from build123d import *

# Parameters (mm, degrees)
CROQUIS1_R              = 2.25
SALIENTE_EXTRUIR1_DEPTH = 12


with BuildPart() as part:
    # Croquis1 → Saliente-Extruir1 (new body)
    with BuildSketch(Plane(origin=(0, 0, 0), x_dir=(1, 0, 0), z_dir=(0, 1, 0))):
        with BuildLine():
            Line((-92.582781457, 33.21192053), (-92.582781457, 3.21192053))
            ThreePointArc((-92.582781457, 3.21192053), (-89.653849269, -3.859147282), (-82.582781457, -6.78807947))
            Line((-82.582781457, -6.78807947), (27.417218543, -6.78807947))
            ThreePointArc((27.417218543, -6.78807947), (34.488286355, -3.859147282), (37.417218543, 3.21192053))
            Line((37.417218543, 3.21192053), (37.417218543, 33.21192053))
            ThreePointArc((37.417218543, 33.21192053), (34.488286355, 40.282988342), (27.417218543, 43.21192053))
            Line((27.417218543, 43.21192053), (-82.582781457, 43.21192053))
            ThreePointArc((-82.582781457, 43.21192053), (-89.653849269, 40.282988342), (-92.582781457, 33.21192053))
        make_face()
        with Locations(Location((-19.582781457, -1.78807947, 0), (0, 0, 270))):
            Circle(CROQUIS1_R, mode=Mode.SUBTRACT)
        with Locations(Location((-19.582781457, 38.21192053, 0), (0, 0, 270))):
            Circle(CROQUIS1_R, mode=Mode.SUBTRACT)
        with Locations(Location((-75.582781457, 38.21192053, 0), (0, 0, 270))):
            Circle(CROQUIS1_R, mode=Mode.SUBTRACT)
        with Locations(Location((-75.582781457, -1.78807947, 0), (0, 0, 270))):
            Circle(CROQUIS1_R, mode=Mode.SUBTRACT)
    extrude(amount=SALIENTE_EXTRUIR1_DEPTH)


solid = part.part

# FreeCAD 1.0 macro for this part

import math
import FreeCAD as App
import Part
import Sketcher
from FreeCAD import Vector
Q = App.Units.Quantity

doc = App.newDocument("Part")
body = doc.addObject("PartDesign::Body", "Body")

sketch1 = doc.addObject("Sketcher::SketchObject", "Sketch")
body.addObject(sketch1)
sketch1.AttachmentSupport = (doc.XZ_Plane, [""])
sketch1.MapMode = "FlatFace"
sketch1.addGeometry(Part.LineSegment(Vector(-92.6, -33.2, 0), Vector(-92.6, -3.2, 0)), False)
sketch1.addGeometry(Part.ArcOfCircle(Part.Circle(Vector(-82.6, -3.2, 0), Vector(0, 0, 1), 10), math.radians(90), math.radians(180)), False)
sketch1.addGeometry(Part.LineSegment(Vector(-82.6, 6.8, 0), Vector(27.4, 6.8, 0)), False)
sketch1.addGeometry(Part.ArcOfCircle(Part.Circle(Vector(27.4, -3.2, 0), Vector(0, 0, 1), 10), math.radians(0), math.radians(90)), False)
sketch1.addGeometry(Part.LineSegment(Vector(37.4, -3.2, 0), Vector(37.4, -33.2, 0)), False)
sketch1.addGeometry(Part.ArcOfCircle(Part.Circle(Vector(27.4, -33.2, 0), Vector(0, 0, 1), 10), math.radians(-90), math.radians(0)), False)
sketch1.addGeometry(Part.LineSegment(Vector(27.4, -43.2, 0), Vector(-82.6, -43.2, 0)), False)
sketch1.addGeometry(Part.ArcOfCircle(Part.Circle(Vector(-82.6, -33.2, 0), Vector(0, 0, 1), 10), math.radians(180), math.radians(270)), False)
sketch1.addGeometry(Part.Circle(Vector(-75.6, 1.8, 0), Vector(0, 0, 1), 2.2), False)
sketch1.addGeometry(Part.Circle(Vector(-19.6, 1.8, 0), Vector(0, 0, 1), 2.2), False)
sketch1.addGeometry(Part.Circle(Vector(-75.6, -38.2, 0), Vector(0, 0, 1), 2.2), False)
sketch1.addGeometry(Part.Circle(Vector(-19.6, -38.2, 0), Vector(0, 0, 1), 2.2), False)
sketch1.addConstraint(Sketcher.Constraint("Tangent", 0, 2, 1, 2))
sketch1.addConstraint(Sketcher.Constraint("Tangent", 1, 1, 2, 1))
sketch1.addConstraint(Sketcher.Constraint("Tangent", 2, 2, 3, 2))
sketch1.addConstraint(Sketcher.Constraint("Tangent", 3, 1, 4, 1))
sketch1.addConstraint(Sketcher.Constraint("Tangent", 4, 2, 5, 2))
sketch1.addConstraint(Sketcher.Constraint("Tangent", 5, 1, 6, 1))
sketch1.addConstraint(Sketcher.Constraint("Tangent", 6, 2, 7, 2))
sketch1.addConstraint(Sketcher.Constraint("Tangent", 7, 1, 0, 1))
sketch1.addConstraint(Sketcher.Constraint("Vertical", 0))
sketch1.addConstraint(Sketcher.Constraint("Horizontal", 2))
sketch1.addConstraint(Sketcher.Constraint("Vertical", 4))
sketch1.addConstraint(Sketcher.Constraint("Horizontal", 6))
sketch1.addConstraint(Sketcher.Constraint("Equal", 1, 3))
sketch1.addConstraint(Sketcher.Constraint("Equal", 3, 5))
sketch1.addConstraint(Sketcher.Constraint("Equal", 5, 7))
sketch1.addConstraint(Sketcher.Constraint("Equal", 8, 9))
sketch1.addConstraint(Sketcher.Constraint("Equal", 9, 10))
sketch1.addConstraint(Sketcher.Constraint("Equal", 10, 11))
sketch1.addConstraint(Sketcher.Constraint("Horizontal", 8, 3, 9, 3))
sketch1.addConstraint(Sketcher.Constraint("Horizontal", 10, 3, 11, 3))
sketch1.addConstraint(Sketcher.Constraint("Vertical", 8, 3, 10, 3))
sketch1.addConstraint(Sketcher.Constraint("Vertical", 9, 3, 11, 3))
sketch1.addConstraint(Sketcher.Constraint("Radius", 1, Q("10 mm")))
sketch1.addConstraint(Sketcher.Constraint("Diameter", 8, Q("4.5 mm")))
sketch1.addConstraint(Sketcher.Constraint("DistanceX", 2, 1, 2, 2, Q("110 mm")))
sketch1.addConstraint(Sketcher.Constraint("DistanceY", 0, 1, 0, 2, Q("30 mm")))
sketch1.addConstraint(Sketcher.Constraint("DistanceX", 1, 3, 8, 3, Q("7 mm")))
sketch1.addConstraint(Sketcher.Constraint("DistanceY", 1, 3, 8, 3, Q("5 mm")))
sketch1.addConstraint(Sketcher.Constraint("DistanceX", 9, 3, 3, 3, Q("47 mm")))
sketch1.addConstraint(Sketcher.Constraint("DistanceY", 10, 3, 7, 3, Q("5 mm")))
sketch1.addConstraint(Sketcher.Constraint("DistanceX", 1, 3, -1, 1, Q("82.582781 mm")))
sketch1.addConstraint(Sketcher.Constraint("DistanceY", 1, 3, -1, 1, Q("3.211921 mm")))
pad1 = doc.addObject("PartDesign::Pad", "Pad")
body.addObject(pad1)
pad1.Profile = sketch1
pad1.Length = 12
pad1.Reversed = True

doc.recompute()
